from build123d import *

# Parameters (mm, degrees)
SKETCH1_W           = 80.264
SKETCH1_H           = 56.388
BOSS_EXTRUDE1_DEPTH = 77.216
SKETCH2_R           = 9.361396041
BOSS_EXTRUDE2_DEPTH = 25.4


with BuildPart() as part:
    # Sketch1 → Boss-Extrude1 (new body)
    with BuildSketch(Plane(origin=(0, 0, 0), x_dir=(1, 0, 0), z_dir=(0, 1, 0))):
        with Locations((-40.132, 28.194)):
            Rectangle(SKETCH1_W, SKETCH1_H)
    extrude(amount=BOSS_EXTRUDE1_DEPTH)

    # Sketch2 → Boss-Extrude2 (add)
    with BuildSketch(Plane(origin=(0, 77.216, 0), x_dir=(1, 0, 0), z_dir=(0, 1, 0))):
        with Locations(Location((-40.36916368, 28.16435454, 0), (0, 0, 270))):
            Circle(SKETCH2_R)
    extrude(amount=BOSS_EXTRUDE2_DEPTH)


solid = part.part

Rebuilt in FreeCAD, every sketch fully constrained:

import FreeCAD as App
import Part
import Sketcher

V = App.Vector
Q = App.Units.Quantity

doc = App.newDocument("Part")
body = doc.addObject("PartDesign::Body", "Body")

sketch1 = body.newObject("Sketcher::SketchObject", "Sketch")
sketch1.AttachmentSupport = (doc.getObject("XZ_Plane"), [""])
sketch1.MapMode = "FlatFace"
sketch1.addGeometry(Part.LineSegment(V(-80.264, -56.388, 0), V(-80.264, 0, 0)), False)
sketch1.addGeometry(Part.LineSegment(V(-80.264, 0, 0), V(0, 0, 0)), False)
sketch1.addGeometry(Part.LineSegment(V(0, 0, 0), V(0, -56.388, 0)), False)
sketch1.addGeometry(Part.LineSegment(V(0, -56.388, 0), V(-80.264, -56.388, 0)), False)
sketch1.addConstraint(Sketcher.Constraint("Coincident", 0, 2, 1, 1))
sketch1.addConstraint(Sketcher.Constraint("Coincident", 1, 2, 2, 1))
sketch1.addConstraint(Sketcher.Constraint("Coincident", 2, 2, 3, 1))
sketch1.addConstraint(Sketcher.Constraint("Coincident", 3, 2, 0, 1))
sketch1.addConstraint(Sketcher.Constraint("Vertical", 0))
sketch1.addConstraint(Sketcher.Constraint("Horizontal", 1))
sketch1.addConstraint(Sketcher.Constraint("Vertical", 2))
sketch1.addConstraint(Sketcher.Constraint("Horizontal", 3))
sketch1.addConstraint(Sketcher.Constraint("Coincident", 1, 2, -1, 1))
sketch1.addConstraint(Sketcher.Constraint("DistanceX", 1, 1, 1, 2, Q("3.16 in")))
sketch1.addConstraint(Sketcher.Constraint("DistanceY", 0, 1, 0, 2, Q("2.22 in")))
pad1 = body.newObject("PartDesign::Pad", "Pad")
pad1.Profile = sketch1
pad1.Length = Q("3.04 in")
pad1.Reversed = True

sketch2 = body.newObject("Sketcher::SketchObject", "Sketch001")
sketch2.AttachmentSupport = (doc.getObject("XZ_Plane"), [""])
sketch2.MapMode = "FlatFace"
sketch2.AttachmentOffset = App.Placement(V(0, 0, -3.04 * 25.4), App.Rotation())
sketch2.addGeometry(Part.Circle(V(-40.369164, -28.164355, 0), V(0, 0, 1), 9.361396), False)
sketch2.addConstraint(Sketcher.Constraint("Diameter", 0, 18.722792))
sketch2.addConstraint(Sketcher.Constraint("DistanceX", 0, 3, -1, 1, 40.369164))
sketch2.addConstraint(Sketcher.Constraint("DistanceY", 0, 3, -1, 1, 28.164355))
pad2 = body.newObject("PartDesign::Pad", "Pad001")
pad2.Profile = sketch2
pad2.Length = Q("1 in")
pad2.Reversed = True

doc.recompute()
